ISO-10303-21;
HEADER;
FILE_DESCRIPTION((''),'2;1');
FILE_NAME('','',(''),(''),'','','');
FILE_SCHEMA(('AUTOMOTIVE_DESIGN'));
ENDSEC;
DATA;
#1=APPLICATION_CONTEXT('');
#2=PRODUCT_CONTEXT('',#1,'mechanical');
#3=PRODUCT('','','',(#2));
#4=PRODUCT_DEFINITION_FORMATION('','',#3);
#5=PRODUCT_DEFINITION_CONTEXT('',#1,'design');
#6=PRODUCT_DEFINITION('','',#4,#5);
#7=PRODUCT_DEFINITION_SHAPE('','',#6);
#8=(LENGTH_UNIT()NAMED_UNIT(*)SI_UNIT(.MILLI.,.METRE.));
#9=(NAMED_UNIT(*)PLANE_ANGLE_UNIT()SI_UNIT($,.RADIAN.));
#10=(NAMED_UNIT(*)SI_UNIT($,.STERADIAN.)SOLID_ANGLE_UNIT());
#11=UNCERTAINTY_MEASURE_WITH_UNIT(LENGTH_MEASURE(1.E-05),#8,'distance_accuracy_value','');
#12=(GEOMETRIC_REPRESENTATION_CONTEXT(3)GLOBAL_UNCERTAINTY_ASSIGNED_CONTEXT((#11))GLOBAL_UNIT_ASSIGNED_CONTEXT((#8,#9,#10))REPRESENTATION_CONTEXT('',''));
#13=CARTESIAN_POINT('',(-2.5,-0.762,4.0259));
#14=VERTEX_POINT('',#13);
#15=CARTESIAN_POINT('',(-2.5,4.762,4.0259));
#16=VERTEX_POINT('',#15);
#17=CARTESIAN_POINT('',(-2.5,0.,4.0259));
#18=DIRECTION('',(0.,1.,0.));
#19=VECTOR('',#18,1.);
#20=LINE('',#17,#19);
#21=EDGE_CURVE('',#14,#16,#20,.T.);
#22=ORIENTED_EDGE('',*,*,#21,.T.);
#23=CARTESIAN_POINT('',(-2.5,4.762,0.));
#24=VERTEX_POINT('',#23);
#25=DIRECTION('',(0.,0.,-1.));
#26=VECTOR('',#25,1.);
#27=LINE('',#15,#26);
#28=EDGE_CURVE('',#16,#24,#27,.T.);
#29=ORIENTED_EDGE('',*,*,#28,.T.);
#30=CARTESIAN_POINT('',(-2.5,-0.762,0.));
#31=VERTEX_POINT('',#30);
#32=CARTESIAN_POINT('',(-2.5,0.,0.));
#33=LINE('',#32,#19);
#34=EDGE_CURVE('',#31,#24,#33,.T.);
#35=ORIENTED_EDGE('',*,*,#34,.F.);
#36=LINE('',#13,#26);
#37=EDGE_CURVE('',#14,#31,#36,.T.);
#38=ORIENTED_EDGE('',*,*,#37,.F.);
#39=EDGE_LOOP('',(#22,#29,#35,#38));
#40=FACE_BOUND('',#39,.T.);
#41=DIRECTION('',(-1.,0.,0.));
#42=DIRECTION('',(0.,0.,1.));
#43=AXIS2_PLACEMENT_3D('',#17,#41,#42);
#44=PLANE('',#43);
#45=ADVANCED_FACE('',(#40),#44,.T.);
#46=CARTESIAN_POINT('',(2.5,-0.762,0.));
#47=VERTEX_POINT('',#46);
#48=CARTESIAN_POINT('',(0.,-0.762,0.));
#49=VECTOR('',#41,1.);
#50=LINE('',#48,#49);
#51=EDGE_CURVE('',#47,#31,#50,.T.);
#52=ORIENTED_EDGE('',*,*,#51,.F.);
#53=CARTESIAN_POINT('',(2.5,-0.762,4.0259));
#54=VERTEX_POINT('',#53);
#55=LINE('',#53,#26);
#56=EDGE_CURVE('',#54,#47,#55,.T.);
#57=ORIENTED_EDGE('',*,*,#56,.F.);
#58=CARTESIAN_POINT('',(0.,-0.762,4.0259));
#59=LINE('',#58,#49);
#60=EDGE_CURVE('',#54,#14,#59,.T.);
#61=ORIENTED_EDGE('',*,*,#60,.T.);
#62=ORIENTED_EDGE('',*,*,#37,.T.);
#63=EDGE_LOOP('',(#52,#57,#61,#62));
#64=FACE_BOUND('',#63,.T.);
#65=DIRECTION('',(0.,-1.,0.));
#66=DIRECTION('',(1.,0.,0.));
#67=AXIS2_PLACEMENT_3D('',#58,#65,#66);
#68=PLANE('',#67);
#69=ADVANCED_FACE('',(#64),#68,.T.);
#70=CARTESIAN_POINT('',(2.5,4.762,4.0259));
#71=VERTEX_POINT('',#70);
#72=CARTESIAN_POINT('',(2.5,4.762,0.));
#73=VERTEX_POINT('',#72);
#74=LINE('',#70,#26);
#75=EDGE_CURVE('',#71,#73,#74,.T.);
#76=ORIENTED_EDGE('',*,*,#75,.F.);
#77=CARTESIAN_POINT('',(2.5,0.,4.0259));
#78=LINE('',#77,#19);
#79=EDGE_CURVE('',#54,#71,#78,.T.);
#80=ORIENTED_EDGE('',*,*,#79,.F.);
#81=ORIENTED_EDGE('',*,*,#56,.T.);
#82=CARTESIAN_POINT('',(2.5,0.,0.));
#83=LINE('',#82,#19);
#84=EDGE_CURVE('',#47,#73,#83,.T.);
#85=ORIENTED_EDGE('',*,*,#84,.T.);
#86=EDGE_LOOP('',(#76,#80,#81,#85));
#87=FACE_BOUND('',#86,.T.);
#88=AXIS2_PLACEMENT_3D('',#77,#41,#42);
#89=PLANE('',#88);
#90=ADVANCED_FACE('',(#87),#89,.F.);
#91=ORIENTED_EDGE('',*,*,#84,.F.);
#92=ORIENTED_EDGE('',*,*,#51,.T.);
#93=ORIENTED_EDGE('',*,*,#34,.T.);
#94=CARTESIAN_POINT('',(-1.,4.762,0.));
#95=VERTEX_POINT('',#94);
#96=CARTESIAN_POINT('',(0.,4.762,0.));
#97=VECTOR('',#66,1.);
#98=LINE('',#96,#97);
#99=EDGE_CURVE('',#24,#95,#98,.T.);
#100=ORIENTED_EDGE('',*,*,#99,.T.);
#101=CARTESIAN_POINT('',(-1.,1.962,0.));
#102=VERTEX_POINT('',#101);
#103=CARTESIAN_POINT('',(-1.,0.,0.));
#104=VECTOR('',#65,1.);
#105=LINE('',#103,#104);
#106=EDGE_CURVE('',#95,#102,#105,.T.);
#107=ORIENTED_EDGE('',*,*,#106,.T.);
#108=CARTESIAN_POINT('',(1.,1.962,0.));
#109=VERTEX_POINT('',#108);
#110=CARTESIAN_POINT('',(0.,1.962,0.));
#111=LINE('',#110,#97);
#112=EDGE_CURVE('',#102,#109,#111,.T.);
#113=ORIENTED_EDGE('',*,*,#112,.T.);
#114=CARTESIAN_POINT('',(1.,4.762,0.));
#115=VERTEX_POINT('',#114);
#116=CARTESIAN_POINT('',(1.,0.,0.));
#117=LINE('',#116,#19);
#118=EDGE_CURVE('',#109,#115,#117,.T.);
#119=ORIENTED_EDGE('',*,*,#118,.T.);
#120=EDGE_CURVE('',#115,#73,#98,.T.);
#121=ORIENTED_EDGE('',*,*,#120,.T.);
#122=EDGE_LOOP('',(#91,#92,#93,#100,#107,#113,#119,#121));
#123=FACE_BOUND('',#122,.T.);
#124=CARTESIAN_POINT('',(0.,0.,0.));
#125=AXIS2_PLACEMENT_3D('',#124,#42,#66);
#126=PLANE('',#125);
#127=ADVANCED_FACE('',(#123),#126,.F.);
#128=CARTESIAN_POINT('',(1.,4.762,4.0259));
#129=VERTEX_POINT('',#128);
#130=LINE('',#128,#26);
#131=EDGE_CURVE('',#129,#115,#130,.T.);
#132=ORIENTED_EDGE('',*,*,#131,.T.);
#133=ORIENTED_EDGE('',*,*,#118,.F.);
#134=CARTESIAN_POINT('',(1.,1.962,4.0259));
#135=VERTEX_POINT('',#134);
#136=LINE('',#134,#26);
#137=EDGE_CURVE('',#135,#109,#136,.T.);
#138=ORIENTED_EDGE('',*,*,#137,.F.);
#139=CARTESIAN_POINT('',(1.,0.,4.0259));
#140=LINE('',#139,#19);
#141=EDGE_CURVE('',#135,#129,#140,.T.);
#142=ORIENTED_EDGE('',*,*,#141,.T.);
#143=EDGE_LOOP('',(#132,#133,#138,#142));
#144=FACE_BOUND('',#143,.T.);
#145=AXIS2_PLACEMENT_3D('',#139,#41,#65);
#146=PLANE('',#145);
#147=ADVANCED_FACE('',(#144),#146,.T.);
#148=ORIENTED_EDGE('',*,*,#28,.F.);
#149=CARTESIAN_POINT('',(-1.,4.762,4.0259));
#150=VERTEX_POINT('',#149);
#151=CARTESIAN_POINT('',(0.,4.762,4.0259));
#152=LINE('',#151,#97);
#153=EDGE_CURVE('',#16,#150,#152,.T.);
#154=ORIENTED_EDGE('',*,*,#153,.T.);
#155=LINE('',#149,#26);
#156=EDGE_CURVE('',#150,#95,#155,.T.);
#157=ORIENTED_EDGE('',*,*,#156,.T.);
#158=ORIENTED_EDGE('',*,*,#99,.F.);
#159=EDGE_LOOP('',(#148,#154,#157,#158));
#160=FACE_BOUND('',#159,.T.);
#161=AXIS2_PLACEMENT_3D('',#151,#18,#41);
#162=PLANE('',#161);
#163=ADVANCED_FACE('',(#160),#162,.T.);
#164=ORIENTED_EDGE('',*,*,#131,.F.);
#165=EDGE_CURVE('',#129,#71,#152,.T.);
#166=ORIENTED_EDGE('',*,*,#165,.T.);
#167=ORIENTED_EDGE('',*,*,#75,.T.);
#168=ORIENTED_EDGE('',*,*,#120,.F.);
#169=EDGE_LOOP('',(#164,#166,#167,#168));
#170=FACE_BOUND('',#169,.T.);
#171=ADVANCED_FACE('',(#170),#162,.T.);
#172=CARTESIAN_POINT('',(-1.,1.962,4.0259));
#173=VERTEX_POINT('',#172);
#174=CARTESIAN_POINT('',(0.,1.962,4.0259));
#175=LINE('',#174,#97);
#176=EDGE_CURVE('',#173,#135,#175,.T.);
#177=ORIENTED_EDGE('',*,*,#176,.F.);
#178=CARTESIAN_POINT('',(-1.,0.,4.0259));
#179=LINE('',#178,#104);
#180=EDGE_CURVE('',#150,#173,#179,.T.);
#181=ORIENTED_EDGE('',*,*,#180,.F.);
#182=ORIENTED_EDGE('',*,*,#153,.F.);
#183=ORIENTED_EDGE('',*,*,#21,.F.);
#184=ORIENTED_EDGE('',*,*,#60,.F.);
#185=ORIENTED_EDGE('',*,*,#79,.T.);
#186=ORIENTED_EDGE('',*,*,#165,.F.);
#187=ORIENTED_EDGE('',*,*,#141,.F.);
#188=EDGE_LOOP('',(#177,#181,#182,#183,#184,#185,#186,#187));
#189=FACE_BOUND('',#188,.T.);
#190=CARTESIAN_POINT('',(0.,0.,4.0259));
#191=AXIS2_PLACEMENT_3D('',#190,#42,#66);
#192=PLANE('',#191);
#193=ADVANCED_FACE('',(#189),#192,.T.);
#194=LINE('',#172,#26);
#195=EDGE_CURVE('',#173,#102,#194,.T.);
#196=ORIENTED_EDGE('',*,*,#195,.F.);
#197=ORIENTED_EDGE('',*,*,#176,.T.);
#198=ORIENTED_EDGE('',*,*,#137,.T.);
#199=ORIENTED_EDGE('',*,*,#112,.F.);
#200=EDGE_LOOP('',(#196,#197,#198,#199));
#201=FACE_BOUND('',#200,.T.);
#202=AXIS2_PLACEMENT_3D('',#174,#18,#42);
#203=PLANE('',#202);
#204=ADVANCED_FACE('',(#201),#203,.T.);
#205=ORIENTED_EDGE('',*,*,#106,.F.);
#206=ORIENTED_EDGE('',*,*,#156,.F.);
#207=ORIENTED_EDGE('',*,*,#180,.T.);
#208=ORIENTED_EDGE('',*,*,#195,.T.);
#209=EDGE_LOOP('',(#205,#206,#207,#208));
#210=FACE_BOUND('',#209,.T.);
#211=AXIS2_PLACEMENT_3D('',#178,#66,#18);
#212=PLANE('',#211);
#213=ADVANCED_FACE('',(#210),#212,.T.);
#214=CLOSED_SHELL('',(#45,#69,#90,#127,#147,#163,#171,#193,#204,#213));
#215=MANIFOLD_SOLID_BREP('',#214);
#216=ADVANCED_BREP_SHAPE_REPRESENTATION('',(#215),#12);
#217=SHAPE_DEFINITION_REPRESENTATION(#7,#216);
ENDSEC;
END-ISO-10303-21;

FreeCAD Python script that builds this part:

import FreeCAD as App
import Part
import Sketcher

V = App.Vector
Q = App.Units.Quantity

doc = App.newDocument("Part")
params = doc.addObject("Spreadsheet::Sheet", "Params")
for row, (alias, value) in enumerate([
    ("sketch1_width", "5 mm"),
    ("sketch1_width2", "2 mm"),
    ("sketch1_height", "2.8 mm"),
    ("pad1_length", "4.0259 mm"),
], start=1):
    params.set(f"A{row}", alias)
    params.set(f"B{row}", "=" + value)
    params.setAlias(f"B{row}", alias)

body = doc.addObject("PartDesign::Body", "Body")

sketch1 = body.newObject("Sketcher::SketchObject", "Sketch")
sketch1.AttachmentSupport = (doc.getObject("XY_Plane"), [""])
sketch1.MapMode = "FlatFace"
sketch1.addGeometry([
    Part.LineSegment(V(-1, 2, 0), V(-1, 4.8, 0)),
    Part.LineSegment(V(-1, 4.8, 0), V(-2.5, 4.8, 0)),
    Part.LineSegment(V(-2.5, 4.8, 0), V(-2.5, -0.8, 0)),
    Part.LineSegment(V(-2.5, -0.8, 0), V(2.5, -0.8, 0)),
    Part.LineSegment(V(2.5, -0.8, 0), V(2.5, 4.8, 0)),
    Part.LineSegment(V(2.5, 4.8, 0), V(1, 4.8, 0)),
    Part.LineSegment(V(1, 4.8, 0), V(1, 2, 0)),
    Part.LineSegment(V(1, 2, 0), V(-1, 2, 0)),
], False)
sketch1.addConstraint([
    Sketcher.Constraint("Coincident", 0, 2, 1, 1),
    Sketcher.Constraint("Coincident", 1, 2, 2, 1),
    Sketcher.Constraint("Coincident", 2, 2, 3, 1),
    Sketcher.Constraint("Coincident", 3, 2, 4, 1),
    Sketcher.Constraint("Coincident", 4, 2, 5, 1),
    Sketcher.Constraint("Coincident", 5, 2, 6, 1),
    Sketcher.Constraint("Coincident", 6, 2, 7, 1),
    Sketcher.Constraint("Coincident", 7, 2, 0, 1),
    Sketcher.Constraint("Vertical", 0),
    Sketcher.Constraint("Horizontal", 1),
    Sketcher.Constraint("Vertical", 2),
    Sketcher.Constraint("Horizontal", 3),
    Sketcher.Constraint("Vertical", 4),
    Sketcher.Constraint("Horizontal", 5),
    Sketcher.Constraint("Vertical", 6),
    Sketcher.Constraint("Horizontal", 7),
    Sketcher.Constraint("Symmetric", 1, 2, 4, 2, -2),
    Sketcher.Constraint("Equal", 1, 5),
    Sketcher.Constraint("DistanceX", 3, 1, 3, 2, Q("5 mm")),
    Sketcher.Constraint("DistanceX", 7, 2, 7, 1, Q("2 mm")),
    Sketcher.Constraint("DistanceY", 0, 1, 0, 2, Q("2.8 mm")),
    Sketcher.Constraint("DistanceY", 2, 2, 2, 1, Q("5.524 mm")),
    Sketcher.Constraint("DistanceY", -1, 1, 0, 2, Q("4.762 mm")),
])
sketch1.setExpression("Constraints[18]", "Params.sketch1_width")
sketch1.setExpression("Constraints[19]", "Params.sketch1_width2")
sketch1.setExpression("Constraints[20]", "Params.sketch1_height")
pad1 = body.newObject("PartDesign::Pad", "Pad")
pad1.Profile = sketch1
pad1.setExpression("Length", "Params.pad1_length")

doc.recompute()
